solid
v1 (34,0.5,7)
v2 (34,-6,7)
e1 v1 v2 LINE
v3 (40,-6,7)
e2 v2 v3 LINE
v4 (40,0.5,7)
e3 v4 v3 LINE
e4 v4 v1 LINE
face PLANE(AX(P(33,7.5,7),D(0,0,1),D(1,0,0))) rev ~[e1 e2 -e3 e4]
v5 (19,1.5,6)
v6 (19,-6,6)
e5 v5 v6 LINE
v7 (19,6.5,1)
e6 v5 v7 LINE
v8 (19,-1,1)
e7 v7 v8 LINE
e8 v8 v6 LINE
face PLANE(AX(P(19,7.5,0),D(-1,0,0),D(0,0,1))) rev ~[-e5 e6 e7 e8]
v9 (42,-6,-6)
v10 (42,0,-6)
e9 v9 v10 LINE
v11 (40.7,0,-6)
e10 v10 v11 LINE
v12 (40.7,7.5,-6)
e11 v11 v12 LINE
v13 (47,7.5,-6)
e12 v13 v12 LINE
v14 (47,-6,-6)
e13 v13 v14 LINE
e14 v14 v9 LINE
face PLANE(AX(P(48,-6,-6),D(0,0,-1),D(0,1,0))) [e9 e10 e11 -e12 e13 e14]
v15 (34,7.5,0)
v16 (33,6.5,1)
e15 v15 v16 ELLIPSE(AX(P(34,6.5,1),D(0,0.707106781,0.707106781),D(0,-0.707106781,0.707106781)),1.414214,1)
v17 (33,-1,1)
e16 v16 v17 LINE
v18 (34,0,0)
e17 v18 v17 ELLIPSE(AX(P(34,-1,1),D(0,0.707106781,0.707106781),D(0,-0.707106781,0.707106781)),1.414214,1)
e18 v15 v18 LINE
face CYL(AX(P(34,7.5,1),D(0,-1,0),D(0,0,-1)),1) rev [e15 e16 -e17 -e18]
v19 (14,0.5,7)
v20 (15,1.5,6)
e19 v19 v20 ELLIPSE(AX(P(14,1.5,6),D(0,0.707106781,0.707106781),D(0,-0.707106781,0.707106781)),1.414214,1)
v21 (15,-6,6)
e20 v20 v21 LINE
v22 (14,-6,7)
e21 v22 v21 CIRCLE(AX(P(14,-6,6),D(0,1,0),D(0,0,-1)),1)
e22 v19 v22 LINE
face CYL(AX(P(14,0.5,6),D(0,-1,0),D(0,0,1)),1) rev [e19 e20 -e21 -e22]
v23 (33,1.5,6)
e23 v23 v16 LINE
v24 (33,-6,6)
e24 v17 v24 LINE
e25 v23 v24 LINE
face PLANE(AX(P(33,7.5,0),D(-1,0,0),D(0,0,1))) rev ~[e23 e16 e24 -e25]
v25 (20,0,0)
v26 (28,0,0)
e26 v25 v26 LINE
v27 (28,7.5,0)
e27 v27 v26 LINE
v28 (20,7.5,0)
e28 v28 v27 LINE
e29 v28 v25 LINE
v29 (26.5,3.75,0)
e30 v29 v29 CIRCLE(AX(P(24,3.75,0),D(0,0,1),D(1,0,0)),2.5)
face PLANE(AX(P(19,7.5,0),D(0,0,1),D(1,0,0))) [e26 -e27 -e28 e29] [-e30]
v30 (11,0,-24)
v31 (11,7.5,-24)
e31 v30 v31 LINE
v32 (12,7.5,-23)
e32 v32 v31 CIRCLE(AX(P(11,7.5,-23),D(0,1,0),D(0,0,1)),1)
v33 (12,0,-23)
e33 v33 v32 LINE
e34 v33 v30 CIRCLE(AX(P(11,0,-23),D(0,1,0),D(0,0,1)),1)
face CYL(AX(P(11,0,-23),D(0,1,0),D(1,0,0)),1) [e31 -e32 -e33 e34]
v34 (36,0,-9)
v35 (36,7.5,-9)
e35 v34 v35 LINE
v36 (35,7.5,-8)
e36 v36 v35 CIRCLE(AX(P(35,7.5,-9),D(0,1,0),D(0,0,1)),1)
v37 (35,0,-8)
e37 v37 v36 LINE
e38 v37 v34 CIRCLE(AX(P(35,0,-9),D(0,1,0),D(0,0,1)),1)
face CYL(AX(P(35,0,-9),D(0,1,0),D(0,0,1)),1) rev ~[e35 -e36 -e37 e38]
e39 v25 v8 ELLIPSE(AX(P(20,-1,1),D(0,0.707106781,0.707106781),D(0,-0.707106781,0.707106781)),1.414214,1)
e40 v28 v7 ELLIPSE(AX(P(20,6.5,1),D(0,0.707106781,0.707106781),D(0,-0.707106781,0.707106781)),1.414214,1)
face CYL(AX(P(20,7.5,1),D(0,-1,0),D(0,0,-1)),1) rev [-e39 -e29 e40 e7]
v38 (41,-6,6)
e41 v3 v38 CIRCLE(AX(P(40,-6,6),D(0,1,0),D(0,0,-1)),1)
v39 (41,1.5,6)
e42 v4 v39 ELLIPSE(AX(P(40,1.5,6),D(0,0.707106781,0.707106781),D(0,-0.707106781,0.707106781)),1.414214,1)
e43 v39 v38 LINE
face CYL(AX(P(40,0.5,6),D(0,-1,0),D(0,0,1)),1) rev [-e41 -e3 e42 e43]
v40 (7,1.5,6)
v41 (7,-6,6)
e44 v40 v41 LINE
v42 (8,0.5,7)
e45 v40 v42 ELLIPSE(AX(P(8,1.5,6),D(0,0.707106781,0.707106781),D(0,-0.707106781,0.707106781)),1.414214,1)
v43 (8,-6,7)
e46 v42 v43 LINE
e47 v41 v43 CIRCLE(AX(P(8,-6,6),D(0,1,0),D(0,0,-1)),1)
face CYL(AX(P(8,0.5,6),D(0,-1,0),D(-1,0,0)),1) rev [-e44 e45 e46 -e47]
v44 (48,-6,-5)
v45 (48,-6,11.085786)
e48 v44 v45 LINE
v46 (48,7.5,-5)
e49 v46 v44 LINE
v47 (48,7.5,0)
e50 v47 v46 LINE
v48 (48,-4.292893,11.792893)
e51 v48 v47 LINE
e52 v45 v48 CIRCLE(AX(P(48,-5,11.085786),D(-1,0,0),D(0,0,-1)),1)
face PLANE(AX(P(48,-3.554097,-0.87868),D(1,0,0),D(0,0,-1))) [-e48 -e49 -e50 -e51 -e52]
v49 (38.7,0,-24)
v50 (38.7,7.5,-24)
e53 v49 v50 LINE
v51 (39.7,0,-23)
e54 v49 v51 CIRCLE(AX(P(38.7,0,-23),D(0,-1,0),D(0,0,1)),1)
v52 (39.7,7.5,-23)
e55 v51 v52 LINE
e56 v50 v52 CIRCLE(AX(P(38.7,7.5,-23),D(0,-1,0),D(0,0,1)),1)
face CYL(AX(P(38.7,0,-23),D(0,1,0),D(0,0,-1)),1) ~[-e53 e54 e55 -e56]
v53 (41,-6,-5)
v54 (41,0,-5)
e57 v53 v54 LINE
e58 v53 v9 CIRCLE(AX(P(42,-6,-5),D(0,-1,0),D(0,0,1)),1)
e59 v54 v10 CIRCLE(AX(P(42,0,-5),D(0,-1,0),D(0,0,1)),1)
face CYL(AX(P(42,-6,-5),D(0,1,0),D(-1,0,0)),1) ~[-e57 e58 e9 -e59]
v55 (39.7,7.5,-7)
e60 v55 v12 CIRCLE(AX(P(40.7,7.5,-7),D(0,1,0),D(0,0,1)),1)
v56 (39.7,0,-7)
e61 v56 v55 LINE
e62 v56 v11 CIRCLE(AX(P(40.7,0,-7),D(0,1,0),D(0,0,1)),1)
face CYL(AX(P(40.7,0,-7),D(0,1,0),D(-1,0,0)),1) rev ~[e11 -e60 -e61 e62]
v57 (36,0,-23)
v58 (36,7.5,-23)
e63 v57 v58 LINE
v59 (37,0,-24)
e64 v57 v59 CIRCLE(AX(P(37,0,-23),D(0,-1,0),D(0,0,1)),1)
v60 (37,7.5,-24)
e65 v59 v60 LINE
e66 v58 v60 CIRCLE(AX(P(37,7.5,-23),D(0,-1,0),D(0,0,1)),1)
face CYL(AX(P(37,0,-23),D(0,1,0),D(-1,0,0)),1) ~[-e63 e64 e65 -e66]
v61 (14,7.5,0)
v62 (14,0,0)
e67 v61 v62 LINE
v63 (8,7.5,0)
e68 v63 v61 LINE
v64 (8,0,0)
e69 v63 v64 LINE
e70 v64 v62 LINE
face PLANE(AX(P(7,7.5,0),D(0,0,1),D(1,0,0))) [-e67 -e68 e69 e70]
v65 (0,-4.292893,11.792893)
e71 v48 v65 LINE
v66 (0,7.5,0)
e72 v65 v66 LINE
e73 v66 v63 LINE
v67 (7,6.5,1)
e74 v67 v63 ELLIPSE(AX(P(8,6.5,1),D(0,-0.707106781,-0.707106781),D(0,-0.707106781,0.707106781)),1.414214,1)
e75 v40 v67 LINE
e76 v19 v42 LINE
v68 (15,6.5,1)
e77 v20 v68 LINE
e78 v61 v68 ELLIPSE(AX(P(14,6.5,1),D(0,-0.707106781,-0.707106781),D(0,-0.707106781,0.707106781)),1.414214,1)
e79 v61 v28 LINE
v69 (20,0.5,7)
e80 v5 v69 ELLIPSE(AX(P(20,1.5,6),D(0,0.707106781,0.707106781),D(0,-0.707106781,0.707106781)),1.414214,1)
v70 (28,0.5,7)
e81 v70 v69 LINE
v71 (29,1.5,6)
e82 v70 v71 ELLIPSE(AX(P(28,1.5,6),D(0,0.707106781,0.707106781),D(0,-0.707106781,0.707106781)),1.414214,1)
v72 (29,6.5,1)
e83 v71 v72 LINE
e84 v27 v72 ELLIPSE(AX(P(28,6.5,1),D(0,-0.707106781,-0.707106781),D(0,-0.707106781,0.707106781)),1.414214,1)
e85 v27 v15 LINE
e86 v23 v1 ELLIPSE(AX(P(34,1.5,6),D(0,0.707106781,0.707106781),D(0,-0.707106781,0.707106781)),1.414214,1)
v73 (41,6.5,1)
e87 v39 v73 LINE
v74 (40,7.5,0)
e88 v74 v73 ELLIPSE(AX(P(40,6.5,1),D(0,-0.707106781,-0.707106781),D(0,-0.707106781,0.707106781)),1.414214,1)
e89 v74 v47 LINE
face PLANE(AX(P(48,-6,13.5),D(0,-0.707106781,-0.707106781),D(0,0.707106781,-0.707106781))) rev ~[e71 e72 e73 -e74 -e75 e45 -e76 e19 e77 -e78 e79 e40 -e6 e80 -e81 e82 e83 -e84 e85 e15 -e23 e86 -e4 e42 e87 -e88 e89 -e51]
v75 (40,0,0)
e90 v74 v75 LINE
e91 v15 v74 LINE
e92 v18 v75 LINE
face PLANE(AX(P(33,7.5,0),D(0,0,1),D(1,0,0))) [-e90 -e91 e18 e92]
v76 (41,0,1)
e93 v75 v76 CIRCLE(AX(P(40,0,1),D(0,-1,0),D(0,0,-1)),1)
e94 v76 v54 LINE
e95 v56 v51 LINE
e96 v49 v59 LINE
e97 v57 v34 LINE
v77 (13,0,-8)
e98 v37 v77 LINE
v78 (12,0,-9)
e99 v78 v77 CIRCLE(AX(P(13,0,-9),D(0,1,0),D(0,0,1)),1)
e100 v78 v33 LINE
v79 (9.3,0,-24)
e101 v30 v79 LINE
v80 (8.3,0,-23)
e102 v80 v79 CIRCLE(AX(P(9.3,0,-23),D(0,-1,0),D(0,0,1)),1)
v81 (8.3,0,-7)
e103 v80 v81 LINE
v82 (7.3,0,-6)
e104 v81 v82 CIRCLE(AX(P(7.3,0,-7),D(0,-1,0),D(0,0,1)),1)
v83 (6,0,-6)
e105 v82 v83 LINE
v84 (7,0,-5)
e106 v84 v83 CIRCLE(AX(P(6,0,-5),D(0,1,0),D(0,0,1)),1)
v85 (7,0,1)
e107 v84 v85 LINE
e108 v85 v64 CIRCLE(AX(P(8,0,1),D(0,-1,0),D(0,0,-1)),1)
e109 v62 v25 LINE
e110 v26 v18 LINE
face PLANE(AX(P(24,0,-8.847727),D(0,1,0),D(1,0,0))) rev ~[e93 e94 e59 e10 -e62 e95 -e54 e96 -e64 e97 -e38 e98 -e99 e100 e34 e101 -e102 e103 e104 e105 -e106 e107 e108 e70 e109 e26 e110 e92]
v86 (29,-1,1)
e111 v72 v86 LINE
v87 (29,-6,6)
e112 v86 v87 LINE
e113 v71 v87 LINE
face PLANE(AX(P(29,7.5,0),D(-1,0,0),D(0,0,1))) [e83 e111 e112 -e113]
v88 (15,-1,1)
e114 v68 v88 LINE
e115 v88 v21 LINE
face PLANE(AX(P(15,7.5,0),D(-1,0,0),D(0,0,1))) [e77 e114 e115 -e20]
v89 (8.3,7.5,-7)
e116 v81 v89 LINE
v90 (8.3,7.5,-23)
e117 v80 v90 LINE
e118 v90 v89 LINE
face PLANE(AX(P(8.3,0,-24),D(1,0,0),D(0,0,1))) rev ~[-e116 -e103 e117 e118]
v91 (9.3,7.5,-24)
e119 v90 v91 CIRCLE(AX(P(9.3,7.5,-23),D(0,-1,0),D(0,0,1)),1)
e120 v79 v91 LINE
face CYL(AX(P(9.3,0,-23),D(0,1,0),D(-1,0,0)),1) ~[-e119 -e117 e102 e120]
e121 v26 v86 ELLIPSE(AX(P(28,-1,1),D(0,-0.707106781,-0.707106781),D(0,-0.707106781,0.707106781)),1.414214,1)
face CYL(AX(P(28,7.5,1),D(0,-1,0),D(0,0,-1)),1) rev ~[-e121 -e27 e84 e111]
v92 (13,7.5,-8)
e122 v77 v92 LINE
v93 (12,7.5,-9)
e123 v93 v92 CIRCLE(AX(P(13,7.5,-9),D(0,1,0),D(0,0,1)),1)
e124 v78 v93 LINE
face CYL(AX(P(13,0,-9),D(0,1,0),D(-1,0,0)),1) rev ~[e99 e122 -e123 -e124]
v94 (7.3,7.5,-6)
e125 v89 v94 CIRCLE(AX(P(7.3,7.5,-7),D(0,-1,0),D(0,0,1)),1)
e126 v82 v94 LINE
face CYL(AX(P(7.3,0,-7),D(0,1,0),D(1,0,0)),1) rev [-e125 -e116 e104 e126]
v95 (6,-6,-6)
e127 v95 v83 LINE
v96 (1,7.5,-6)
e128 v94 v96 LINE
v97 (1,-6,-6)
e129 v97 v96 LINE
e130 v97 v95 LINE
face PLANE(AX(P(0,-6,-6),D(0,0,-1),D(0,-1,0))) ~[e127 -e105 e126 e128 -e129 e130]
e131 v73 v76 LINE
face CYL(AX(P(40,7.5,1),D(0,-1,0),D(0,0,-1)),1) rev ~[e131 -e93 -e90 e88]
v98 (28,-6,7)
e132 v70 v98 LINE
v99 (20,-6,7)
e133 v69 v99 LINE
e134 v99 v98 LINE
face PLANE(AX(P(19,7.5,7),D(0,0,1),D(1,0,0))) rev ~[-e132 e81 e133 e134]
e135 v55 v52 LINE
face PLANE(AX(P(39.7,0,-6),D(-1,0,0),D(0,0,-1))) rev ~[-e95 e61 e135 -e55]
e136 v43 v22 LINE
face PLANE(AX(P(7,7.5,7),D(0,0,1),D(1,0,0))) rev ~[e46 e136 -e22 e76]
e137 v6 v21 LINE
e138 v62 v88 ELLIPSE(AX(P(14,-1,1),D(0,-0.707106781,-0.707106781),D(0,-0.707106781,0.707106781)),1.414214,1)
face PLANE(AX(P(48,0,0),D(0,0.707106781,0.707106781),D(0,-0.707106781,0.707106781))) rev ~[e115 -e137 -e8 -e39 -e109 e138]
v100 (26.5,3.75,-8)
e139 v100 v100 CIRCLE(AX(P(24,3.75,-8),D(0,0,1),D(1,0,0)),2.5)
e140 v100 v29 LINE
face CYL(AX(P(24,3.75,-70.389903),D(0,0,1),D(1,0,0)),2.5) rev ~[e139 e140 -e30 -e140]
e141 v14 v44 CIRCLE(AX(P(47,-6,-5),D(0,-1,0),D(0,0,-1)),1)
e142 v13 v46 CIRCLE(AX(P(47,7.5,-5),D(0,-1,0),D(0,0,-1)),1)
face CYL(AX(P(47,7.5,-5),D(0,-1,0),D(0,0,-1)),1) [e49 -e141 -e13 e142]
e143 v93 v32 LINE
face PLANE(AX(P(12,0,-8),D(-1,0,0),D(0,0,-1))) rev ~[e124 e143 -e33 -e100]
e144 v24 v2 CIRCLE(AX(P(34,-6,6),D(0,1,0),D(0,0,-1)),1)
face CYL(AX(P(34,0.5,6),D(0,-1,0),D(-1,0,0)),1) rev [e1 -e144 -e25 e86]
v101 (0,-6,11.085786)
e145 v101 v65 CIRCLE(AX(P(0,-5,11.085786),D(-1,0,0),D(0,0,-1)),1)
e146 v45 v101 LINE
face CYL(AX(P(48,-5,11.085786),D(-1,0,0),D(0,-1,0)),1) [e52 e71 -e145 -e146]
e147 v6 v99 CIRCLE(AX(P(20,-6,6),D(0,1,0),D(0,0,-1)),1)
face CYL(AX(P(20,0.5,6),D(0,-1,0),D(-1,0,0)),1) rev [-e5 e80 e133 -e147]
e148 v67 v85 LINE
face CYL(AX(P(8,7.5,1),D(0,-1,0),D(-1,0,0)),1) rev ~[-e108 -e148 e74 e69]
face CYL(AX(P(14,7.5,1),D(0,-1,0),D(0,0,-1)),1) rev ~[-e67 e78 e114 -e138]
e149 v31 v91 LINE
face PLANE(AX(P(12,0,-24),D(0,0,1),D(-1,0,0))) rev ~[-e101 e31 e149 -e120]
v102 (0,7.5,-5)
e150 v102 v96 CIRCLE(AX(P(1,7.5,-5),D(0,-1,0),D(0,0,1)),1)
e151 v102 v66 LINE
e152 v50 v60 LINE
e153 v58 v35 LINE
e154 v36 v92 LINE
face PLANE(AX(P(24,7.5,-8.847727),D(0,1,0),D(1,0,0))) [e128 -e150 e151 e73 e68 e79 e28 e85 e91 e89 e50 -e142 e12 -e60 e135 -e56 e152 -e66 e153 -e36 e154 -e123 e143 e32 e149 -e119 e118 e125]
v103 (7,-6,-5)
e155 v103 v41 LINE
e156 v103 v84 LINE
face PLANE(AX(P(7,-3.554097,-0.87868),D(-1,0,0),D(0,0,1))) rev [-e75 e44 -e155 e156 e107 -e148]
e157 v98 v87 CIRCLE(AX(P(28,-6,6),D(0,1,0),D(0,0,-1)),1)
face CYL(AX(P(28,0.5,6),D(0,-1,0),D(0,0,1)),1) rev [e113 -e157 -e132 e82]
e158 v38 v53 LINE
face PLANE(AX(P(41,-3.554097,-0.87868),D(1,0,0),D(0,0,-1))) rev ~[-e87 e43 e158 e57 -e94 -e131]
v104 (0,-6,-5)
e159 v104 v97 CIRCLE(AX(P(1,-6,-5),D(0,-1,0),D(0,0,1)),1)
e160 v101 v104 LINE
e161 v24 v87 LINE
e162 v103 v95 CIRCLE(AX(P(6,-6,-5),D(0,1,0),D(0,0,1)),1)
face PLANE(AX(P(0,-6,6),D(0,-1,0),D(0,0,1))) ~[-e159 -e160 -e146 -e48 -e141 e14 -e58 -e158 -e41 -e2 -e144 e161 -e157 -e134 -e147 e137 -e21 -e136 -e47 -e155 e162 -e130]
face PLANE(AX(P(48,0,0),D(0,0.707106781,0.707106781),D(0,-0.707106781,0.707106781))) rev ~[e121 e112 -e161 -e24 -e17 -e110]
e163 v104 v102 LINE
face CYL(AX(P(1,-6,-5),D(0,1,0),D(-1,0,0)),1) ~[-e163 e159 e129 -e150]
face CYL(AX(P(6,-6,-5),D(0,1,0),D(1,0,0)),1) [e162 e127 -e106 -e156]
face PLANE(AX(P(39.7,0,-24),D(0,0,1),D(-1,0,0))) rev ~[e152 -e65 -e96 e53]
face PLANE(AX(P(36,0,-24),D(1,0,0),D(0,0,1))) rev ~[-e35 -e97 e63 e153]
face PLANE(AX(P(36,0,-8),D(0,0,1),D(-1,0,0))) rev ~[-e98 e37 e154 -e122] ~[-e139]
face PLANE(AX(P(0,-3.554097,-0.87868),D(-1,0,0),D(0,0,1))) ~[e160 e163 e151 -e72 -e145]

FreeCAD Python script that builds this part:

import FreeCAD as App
import Part
import Sketcher
Q = App.Units.Quantity


def edges_at(feature, points):
    """Names of the edges that pass closest to the given points."""
    edges = feature.Shape.Edges
    near = lambda p: min(range(len(edges)), key=lambda i: edges[i].distToShape(Part.Vertex(*p))[0])
    return sorted({f"Edge{near(p) + 1}" for p in points})


def add_polygon(sketch, points):
    """Adds a closed chain of lines whose ends are joined by coincident constraints."""
    first, n = sketch.GeometryCount, len(points)
    for a, b in zip(points, points[1:] + points[:1]):
        sketch.addGeometry(Part.LineSegment(App.Vector(*a, 0), App.Vector(*b, 0)), False)
    for i in range(n):
        sketch.addConstraint(Sketcher.Constraint("Coincident", first + i, 2, first + (i + 1) % n, 1))

doc = App.newDocument("Part")
body = doc.addObject("PartDesign::Body", "Body")

# Sketch on XZ plane
sketch1 = body.newObject("Sketcher::SketchObject", "Sketch")
sketch1.AttachmentSupport = (doc.getObject("XZ_Plane"), [""])
sketch1.MapMode = "FlatFace"
add_polygon(sketch1, [(12, -24), (8.3, -24), (8.3, -6), (0, -6), (0, 0), (48, 0), (48, -6), (39.7, -6), (39.7, -24), (36, -24), (36, -8), (12, -8)])  # lines 0-11
sketch1.addConstraint([
    Sketcher.Constraint("Horizontal", 0),
    Sketcher.Constraint("Vertical", 1),
    Sketcher.Constraint("Horizontal", 2),
    Sketcher.Constraint("Vertical", 3),
    Sketcher.Constraint("Horizontal", 4),
    Sketcher.Constraint("Vertical", 5),
    Sketcher.Constraint("Horizontal", 6),
    Sketcher.Constraint("Vertical", 7),
    Sketcher.Constraint("Horizontal", 8),
    Sketcher.Constraint("Vertical", 9),
    Sketcher.Constraint("Horizontal", 10),
    Sketcher.Constraint("Vertical", 11),
    Sketcher.Constraint("Coincident", 3, 2, -1, 1),
    Sketcher.Constraint("Horizontal", 2, 2, 5, 2),
    Sketcher.Constraint("Horizontal", 0, 2, 7, 2),
    Sketcher.Constraint("Equal", 2, 6),
    Sketcher.Constraint("Equal", 0, 8),
    Sketcher.Constraint("DistanceX", 4, 1, 4, 2, Q("48 mm")),
    Sketcher.Constraint("DistanceX", 10, 2, 10, 1, Q("24 mm")),
    Sketcher.Constraint("DistanceY", 1, 1, 1, 2, Q("18 mm")),
    Sketcher.Constraint("DistanceY", 3, 1, 3, 2, Q("6 mm")),
    Sketcher.Constraint("DistanceY", 9, 1, 9, 2, Q("16 mm")),
    Sketcher.Constraint("DistanceX", 0, 2, 0, 1, Q("3.7 mm")),
])
pad1 = body.newObject("PartDesign::Pad", "Pad")
pad1.Profile = sketch1
pad1.Length = 7.5
pad1.Reversed = True

# Sketch on YZ plane
sketch2 = body.newObject("Sketcher::SketchObject", "Sketch001")
sketch2.AttachmentSupport = (doc.getObject("YZ_Plane"), [""])
sketch2.MapMode = "FlatFace"
sketch2.AttachmentOffset = App.Placement(App.Vector(0, 0, 48), App.Rotation())
add_polygon(sketch2, [(-6, 6), (0, 0), (7.5, 0), (-6, 13.5)])  # lines 0-3
sketch2.addConstraint([
    Sketcher.Constraint("Horizontal", 1),
    Sketcher.Constraint("Vertical", 3),
    Sketcher.Constraint("Coincident", 0, 2, -1, 1),
    Sketcher.Constraint("Parallel", 0, 2),
    Sketcher.Constraint("Equal", 1, 3),
    Sketcher.Constraint("DistanceX", 1, 1, 1, 2, Q("7.5 mm")),
    Sketcher.Constraint("DistanceX", 2, 2, -1, 1, Q("6 mm")),
])
pad2 = body.newObject("PartDesign::Pad", "Pad001")
pad2.Profile = sketch2
pad2.Length = 48
pad2.Reversed = True

# Sketch on YZ plane
sketch3 = body.newObject("Sketcher::SketchObject", "Sketch002")
sketch3.AttachmentSupport = (doc.getObject("YZ_Plane"), [""])
sketch3.MapMode = "FlatFace"
sketch3.AttachmentOffset = App.Placement(App.Vector(0, 0, 48), App.Rotation())
add_polygon(sketch3, [(-6, 6), (-6, -6), (0, -6), (0, 0)])  # lines 0-3
sketch3.addConstraint([
    Sketcher.Constraint("Vertical", 0),
    Sketcher.Constraint("Horizontal", 1),
    Sketcher.Constraint("Vertical", 2),
    Sketcher.Constraint("Coincident", 2, 2, -1, 1),
    Sketcher.Constraint("Equal", 1, 2),
    Sketcher.Constraint("DistanceX", 1, 1, 1, 2, Q("6 mm")),
    Sketcher.Constraint("DistanceY", 0, 2, 0, 1, Q("12 mm")),
])
pad3 = body.newObject("PartDesign::Pad", "Pad002")
pad3.Profile = sketch3
pad3.Length = 7
pad3.Reversed = True

# Sketch on XZ plane
sketch4 = body.newObject("Sketcher::SketchObject", "Sketch003")
sketch4.AttachmentSupport = (doc.getObject("XZ_Plane"), [""])
sketch4.MapMode = "FlatFace"
sketch4.AttachmentOffset = App.Placement(App.Vector(0, 0, -7.5), App.Rotation())
add_polygon(sketch4, [(7, 7), (7, 0), (15, 0), (15, 7)])  # lines 0-3
add_polygon(sketch4, [(33, 7), (33, 0), (41, 0), (41, 7)])  # lines 4-7
add_polygon(sketch4, [(19, 7), (19, 0), (29, 0), (29, 7)])  # lines 8-11
sketch4.addConstraint([
    Sketcher.Constraint("Vertical", 0),
    Sketcher.Constraint("Horizontal", 1),
    Sketcher.Constraint("Vertical", 2),
    Sketcher.Constraint("Horizontal", 3),
    Sketcher.Constraint("Vertical", 4),
    Sketcher.Constraint("Horizontal", 5),
    Sketcher.Constraint("Vertical", 6),
    Sketcher.Constraint("Horizontal", 7),
    Sketcher.Constraint("Vertical", 8),
    Sketcher.Constraint("Horizontal", 9),
    Sketcher.Constraint("Vertical", 10),
    Sketcher.Constraint("Horizontal", 11),
    Sketcher.Constraint("PointOnObject", 0, 2, -1),
    Sketcher.Constraint("PointOnObject", 4, 2, -1),
    Sketcher.Constraint("PointOnObject", 8, 2, -1),
    Sketcher.Constraint("Horizontal", 3, 2, 6, 2),
    Sketcher.Constraint("Horizontal", 7, 2, 10, 2),
    Sketcher.Constraint("Equal", 3, 5),
    Sketcher.Constraint("DistanceX", 1, 1, 1, 2, Q("8 mm")),
    Sketcher.Constraint("DistanceX", 9, 1, 9, 2, Q("10 mm")),
    Sketcher.Constraint("DistanceY", 0, 2, 0, 1, Q("7 mm")),
    Sketcher.Constraint("DistanceX", -1, 1, 0, 2, Q("7 mm")),
    Sketcher.Constraint("DistanceX", -1, 1, 4, 2, Q("33 mm")),
    Sketcher.Constraint("DistanceX", -1, 1, 8, 2, Q("19 mm")),
])
pocket1 = body.newObject("PartDesign::Pocket", "Pocket")
pocket1.Profile = sketch4
pocket1.Length = 13.5
pocket1.Reversed = True

# Sketch on XY plane
sketch5 = body.newObject("Sketcher::SketchObject", "Sketch004")
sketch5.AttachmentSupport = (doc.getObject("XY_Plane"), [""])
sketch5.MapMode = "FlatFace"
sketch5.AttachmentOffset = App.Placement(App.Vector(0, 0, -8), App.Rotation())
sketch5.addGeometry(Part.Circle(App.Vector(24, 3.75, 0), App.Vector(0, 0, 1), 2.5), False)
sketch5.addConstraint([
    Sketcher.Constraint("Diameter", 0, Q("5 mm")),
    Sketcher.Constraint("DistanceX", -1, 1, 0, 3, Q("24 mm")),
    Sketcher.Constraint("DistanceY", -1, 1, 0, 3, Q("3.75 mm")),
])
doc.recompute()
hole = body.newObject("PartDesign::Hole", "Hole")
hole.Profile = sketch5
hole.ThreadType = "None"
hole.Diameter = 5
hole.DepthType = "ThroughAll"
hole.Reversed = True
doc.recompute()

datumplane = body.newObject("PartDesign::Plane", "DatumPlane")
datumplane.AttachmentSupport = (doc.getObject("YZ_Plane"), [""])
datumplane.MapMode = "FlatFace"
datumplane.AttachmentOffset = App.Placement(App.Vector(0, 0, 24), App.Rotation())
mirrored = body.newObject("PartDesign::Mirrored", "Mirrored")
mirrored.Originals = [pad3]
mirrored.MirrorPlane = (datumplane, [""])
body.Tip = mirrored
doc.recompute()

fillet = body.newObject("PartDesign::Fillet", "Fillet")
fillet.Base = (mirrored, edges_at(mirrored, [
    (29, 3.75, 0),
    (29, -2.75, 7),
    (19, -2.75, 7),
    (19, 3.75, 0),
    (7, -3, -6),
    (39.7, 3.75, -24),
    (39.7, 3.75, -6),
    (48, 0.75, -6),
    (0, 0.75, -6),
    (8.3, 3.75, -6),
    (8.3, 3.75, -24),
    (12, 3.75, -24),
    (12, 3.75, -8),
    (36, 3.75, -8),
    (36, 3.75, -24),
    (24, -6, 13.5),
    (41, -3, -6),
    (15, 3.75, 0),
    (15, -2.75, 7),
    (7, -2.75, 7),
    (7, 3.75, 0),
    (33, -2.75, 7),
    (33, 3.75, 0),
    (41, 3.75, 0),
    (41, -2.75, 7),
]))
fillet.Radius = 1

doc.recompute()
